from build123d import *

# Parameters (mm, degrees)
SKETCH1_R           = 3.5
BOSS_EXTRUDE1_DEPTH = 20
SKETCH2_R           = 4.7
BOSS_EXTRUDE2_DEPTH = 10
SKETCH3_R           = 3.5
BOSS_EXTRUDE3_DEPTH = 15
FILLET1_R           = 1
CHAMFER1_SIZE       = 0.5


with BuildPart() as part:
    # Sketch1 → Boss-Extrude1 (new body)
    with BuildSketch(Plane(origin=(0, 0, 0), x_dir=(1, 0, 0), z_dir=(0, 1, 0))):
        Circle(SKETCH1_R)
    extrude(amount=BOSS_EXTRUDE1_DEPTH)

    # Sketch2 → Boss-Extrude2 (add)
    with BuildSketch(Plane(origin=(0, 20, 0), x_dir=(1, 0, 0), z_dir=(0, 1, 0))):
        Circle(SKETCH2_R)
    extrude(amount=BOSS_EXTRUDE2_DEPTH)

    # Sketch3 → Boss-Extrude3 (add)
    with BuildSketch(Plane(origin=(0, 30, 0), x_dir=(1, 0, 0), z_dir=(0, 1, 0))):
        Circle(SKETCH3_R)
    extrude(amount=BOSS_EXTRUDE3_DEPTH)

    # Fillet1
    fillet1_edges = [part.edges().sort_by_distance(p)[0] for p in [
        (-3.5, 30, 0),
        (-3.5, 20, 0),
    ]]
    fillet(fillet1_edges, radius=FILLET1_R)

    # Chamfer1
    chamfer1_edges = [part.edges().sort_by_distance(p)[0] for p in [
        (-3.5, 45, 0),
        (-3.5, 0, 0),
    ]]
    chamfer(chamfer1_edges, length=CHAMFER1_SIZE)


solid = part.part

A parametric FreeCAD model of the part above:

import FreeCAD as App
import Part
import Sketcher

V = App.Vector


def edges_at(feature, points):
    """Names of the edges that pass closest to the given points."""
    edges = feature.Shape.Edges
    near = lambda p: min(range(len(edges)), key=lambda i: edges[i].distToShape(Part.Vertex(*p))[0])
    return sorted({f"Edge{near(p) + 1}" for p in points})

doc = App.newDocument("Part")
body = doc.addObject("PartDesign::Body", "Body")

# Sketch on XZ plane
sketch1 = body.newObject("Sketcher::SketchObject", "Sketch")
sketch1.AttachmentSupport = (doc.getObject("XZ_Plane"), [""])
sketch1.MapMode = "FlatFace"
sketch1.addGeometry(Part.Circle(V(0, 0, 0), V(0, 0, 1), 3.5), False)
sketch1.addConstraint([
    Sketcher.Constraint("Coincident", 0, 3, -1, 1),
    Sketcher.Constraint("Diameter", 0, 7.0),
])
pad1 = body.newObject("PartDesign::Pad", "Pad")
pad1.Profile = sketch1
pad1.Length = 20
pad1.Reversed = True

# Sketch on XZ plane
sketch2 = body.newObject("Sketcher::SketchObject", "Sketch001")
sketch2.AttachmentSupport = (doc.getObject("XZ_Plane"), [""])
sketch2.MapMode = "FlatFace"
sketch2.AttachmentOffset = App.Placement(V(0, 0, -20), App.Rotation())
sketch2.addGeometry(Part.Circle(V(0, 0, 0), V(0, 0, 1), 4.7), False)
sketch2.addConstraint([
    Sketcher.Constraint("Coincident", 0, 3, -1, 1),
    Sketcher.Constraint("Diameter", 0, 9.4),
])
pad2 = body.newObject("PartDesign::Pad", "Pad001")
pad2.Profile = sketch2
pad2.Length = 10
pad2.Reversed = True

# Sketch on XZ plane
sketch3 = body.newObject("Sketcher::SketchObject", "Sketch002")
sketch3.AttachmentSupport = (doc.getObject("XZ_Plane"), [""])
sketch3.MapMode = "FlatFace"
sketch3.AttachmentOffset = App.Placement(V(0, 0, -30), App.Rotation())
sketch3.addGeometry(Part.Circle(V(0, 0, 0), V(0, 0, 1), 3.5), False)
sketch3.addConstraint([
    Sketcher.Constraint("Coincident", 0, 3, -1, 1),
    Sketcher.Constraint("Diameter", 0, 7.0),
])
pad3 = body.newObject("PartDesign::Pad", "Pad002")
pad3.Profile = sketch3
pad3.Length = 15
pad3.Reversed = True
doc.recompute()

fillet = body.newObject("PartDesign::Fillet", "Fillet")
fillet.Base = (pad3, edges_at(pad3, [(-3.5, 30, 0), (-3.5, 20, 0)]))
fillet.Radius = 1
doc.recompute()

chamfer = body.newObject("PartDesign::Chamfer", "Chamfer")
chamfer.Base = (fillet, edges_at(fillet, [(-3.5, 45, 0), (-3.5, 0, 0)]))
chamfer.Size = 0.5

doc.recompute()
